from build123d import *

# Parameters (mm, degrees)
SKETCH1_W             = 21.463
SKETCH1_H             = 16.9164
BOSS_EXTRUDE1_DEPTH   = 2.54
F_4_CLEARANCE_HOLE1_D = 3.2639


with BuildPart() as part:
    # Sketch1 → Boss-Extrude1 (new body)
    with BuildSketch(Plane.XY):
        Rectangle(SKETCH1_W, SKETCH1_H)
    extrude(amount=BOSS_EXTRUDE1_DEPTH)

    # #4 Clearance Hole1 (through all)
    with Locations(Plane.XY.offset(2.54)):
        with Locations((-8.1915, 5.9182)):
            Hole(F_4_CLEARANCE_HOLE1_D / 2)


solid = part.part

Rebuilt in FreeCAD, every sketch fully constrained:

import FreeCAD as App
import Part
import Sketcher
from FreeCAD import Vector
Q = App.Units.Quantity


def add_polygon(sketch, points):
    """Adds a closed chain of lines whose ends are joined by coincident constraints."""
    first, n = sketch.GeometryCount, len(points)
    for a, b in zip(points, points[1:] + points[:1]):
        sketch.addGeometry(Part.LineSegment(App.Vector(*a, 0), App.Vector(*b, 0)), False)
    for i in range(n):
        sketch.addConstraint(Sketcher.Constraint("Coincident", first + i, 2, first + (i + 1) % n, 1))

doc = App.newDocument("Part")
body = doc.addObject("PartDesign::Body", "Body")

# Sketch on XY plane
sketch1 = body.newObject("Sketcher::SketchObject", "Sketch")
sketch1.AttachmentSupport = (doc.getObject("XY_Plane"), [""])
sketch1.MapMode = "FlatFace"
add_polygon(sketch1, [(-11, 8), (-11, -8), (11, -8), (11, 8)])  # lines 0-3
sketch1.addConstraint([
    Sketcher.Constraint("Vertical", 0),
    Sketcher.Constraint("Horizontal", 1),
    Sketcher.Constraint("Vertical", 2),
    Sketcher.Constraint("Horizontal", 3),
    Sketcher.Constraint("Symmetric", 0, 2, 2, 2, -1, 1),
    Sketcher.Constraint("DistanceX", 1, 1, 1, 2, Q("0.845 in")),
    Sketcher.Constraint("DistanceY", 0, 2, 0, 1, Q("0.666 in")),
])
pad1 = body.newObject("PartDesign::Pad", "Pad")
pad1.Profile = sketch1
pad1.Length = Q("0.1 in")

# Sketch on XY plane
sketch2 = body.newObject("Sketcher::SketchObject", "Sketch001")
sketch2.AttachmentSupport = (doc.getObject("XY_Plane"), [""])
sketch2.MapMode = "FlatFace"
sketch2.AttachmentOffset = App.Placement(Vector(0, 0, 0.1 * 25.4), App.Rotation())
sketch2.addGeometry(Part.Circle(Vector(-8.2, 5.9, 0), Vector(0, 0, 1), 1.6), False)
sketch2.addConstraint([
    Sketcher.Constraint("Diameter", 0, Q("0.1285 in")),
    Sketcher.Constraint("DistanceY", -1, 1, 0, 3, Q("0.233 in")),
    Sketcher.Constraint("DistanceX", 0, 3, -1, 1, Q("0.3225 in")),
])
doc.recompute()
hole = body.newObject("PartDesign::Hole", "Hole")
hole.Profile = sketch2
hole.ThreadType = "None"
hole.Diameter = Q("0.1285 in")
hole.DepthType = "ThroughAll"

doc.recompute()
